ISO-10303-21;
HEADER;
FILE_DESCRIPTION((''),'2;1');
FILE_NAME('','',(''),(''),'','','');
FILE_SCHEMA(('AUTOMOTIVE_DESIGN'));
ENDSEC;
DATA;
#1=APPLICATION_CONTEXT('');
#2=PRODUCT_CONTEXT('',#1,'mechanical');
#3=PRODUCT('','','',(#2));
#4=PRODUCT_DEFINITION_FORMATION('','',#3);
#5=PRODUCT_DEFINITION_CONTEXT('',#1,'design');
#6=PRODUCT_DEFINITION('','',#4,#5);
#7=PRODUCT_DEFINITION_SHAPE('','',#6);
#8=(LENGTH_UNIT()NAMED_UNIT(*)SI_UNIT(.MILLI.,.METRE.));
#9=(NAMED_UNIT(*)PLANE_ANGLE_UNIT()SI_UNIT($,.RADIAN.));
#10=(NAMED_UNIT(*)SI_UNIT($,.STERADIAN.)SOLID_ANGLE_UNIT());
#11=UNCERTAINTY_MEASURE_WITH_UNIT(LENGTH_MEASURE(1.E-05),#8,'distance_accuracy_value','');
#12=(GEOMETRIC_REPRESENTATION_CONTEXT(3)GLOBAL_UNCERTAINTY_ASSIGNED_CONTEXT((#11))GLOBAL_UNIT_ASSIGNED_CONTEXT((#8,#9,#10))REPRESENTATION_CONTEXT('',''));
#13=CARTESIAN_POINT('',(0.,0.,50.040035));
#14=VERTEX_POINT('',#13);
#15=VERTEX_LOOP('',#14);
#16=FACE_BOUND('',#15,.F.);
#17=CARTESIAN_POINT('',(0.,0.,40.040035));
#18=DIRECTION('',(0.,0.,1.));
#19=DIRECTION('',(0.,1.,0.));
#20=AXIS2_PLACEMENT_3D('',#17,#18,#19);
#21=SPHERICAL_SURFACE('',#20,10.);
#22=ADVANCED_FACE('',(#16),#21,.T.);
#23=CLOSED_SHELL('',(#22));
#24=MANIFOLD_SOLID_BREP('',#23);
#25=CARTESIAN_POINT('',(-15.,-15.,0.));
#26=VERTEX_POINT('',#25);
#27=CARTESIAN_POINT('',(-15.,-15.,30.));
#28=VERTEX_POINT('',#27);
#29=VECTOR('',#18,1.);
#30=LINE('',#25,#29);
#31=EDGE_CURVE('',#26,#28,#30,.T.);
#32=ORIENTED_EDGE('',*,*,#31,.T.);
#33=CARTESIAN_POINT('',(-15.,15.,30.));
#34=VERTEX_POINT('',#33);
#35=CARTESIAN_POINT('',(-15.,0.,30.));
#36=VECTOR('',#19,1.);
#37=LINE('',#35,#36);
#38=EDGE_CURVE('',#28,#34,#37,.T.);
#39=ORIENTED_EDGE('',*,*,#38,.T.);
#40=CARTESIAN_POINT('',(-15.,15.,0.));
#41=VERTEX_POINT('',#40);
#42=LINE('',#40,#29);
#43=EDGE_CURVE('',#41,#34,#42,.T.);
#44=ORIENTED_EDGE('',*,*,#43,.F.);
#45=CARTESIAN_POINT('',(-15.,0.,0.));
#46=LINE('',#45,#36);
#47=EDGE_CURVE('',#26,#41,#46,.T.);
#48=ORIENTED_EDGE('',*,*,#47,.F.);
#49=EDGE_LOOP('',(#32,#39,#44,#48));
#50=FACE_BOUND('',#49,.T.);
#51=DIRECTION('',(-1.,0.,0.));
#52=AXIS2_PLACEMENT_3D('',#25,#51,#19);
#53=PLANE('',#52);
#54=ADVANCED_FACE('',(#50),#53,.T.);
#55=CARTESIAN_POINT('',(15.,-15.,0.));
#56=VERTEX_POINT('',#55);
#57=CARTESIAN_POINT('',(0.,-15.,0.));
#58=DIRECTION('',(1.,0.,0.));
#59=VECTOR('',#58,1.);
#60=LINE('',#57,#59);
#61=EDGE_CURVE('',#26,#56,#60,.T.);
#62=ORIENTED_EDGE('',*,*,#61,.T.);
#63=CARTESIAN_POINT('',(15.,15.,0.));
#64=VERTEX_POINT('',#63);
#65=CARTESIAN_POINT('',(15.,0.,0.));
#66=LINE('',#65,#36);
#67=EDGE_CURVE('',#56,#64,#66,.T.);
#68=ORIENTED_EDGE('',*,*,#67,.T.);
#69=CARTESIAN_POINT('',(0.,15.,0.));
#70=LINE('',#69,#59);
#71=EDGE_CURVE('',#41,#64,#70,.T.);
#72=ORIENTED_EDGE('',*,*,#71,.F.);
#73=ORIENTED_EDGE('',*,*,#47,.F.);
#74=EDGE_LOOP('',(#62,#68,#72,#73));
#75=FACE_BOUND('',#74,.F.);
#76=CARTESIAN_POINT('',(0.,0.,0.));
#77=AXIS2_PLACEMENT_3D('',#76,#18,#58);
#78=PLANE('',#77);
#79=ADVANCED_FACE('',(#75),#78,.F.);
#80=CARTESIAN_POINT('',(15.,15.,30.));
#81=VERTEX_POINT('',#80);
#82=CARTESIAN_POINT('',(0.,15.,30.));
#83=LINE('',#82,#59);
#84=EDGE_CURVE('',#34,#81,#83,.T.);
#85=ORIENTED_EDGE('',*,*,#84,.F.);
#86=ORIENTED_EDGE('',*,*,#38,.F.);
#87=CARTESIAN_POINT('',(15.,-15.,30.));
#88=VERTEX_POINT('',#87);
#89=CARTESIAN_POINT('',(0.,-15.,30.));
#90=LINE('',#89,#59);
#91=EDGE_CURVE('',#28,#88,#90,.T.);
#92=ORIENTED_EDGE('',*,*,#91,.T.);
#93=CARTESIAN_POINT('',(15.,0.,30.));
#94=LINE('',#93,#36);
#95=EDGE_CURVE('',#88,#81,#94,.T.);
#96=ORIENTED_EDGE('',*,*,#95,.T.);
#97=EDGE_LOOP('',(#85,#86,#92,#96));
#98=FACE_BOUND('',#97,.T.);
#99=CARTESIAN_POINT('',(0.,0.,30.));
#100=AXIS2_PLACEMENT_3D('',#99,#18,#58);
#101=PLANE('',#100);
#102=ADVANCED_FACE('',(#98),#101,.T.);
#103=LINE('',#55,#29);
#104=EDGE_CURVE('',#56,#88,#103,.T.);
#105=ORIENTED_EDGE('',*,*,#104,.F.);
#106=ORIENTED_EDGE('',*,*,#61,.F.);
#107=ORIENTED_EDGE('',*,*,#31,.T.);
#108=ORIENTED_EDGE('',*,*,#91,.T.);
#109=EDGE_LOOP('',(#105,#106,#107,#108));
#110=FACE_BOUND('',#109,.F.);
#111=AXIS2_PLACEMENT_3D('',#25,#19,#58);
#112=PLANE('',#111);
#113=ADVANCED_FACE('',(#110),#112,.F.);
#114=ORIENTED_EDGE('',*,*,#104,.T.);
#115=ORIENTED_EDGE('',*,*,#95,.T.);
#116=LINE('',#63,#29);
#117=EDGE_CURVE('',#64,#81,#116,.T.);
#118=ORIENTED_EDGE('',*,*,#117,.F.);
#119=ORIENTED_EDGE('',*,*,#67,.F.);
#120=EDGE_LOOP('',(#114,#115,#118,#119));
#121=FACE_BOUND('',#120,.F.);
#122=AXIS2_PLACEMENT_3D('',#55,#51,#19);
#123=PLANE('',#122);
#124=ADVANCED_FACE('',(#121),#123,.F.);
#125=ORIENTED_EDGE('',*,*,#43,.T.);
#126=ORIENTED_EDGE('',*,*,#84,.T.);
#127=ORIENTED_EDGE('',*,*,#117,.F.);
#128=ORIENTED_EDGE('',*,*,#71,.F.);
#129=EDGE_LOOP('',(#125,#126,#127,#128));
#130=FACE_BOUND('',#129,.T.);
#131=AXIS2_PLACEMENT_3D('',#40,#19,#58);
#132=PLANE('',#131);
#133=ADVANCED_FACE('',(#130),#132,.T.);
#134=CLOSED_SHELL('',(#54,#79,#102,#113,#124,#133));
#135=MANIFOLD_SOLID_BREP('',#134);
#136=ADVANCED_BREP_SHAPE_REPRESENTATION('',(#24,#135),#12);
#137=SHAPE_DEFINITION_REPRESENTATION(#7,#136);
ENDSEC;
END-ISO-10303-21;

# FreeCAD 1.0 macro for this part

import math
import FreeCAD as App
import Part
import Sketcher
from FreeCAD import Vector
Q = App.Units.Quantity


def add_polygon(sketch, points):
    """Adds a closed chain of lines whose ends are joined by coincident constraints."""
    first, n = sketch.GeometryCount, len(points)
    for a, b in zip(points, points[1:] + points[:1]):
        sketch.addGeometry(Part.LineSegment(App.Vector(*a, 0), App.Vector(*b, 0)), False)
    for i in range(n):
        sketch.addConstraint(Sketcher.Constraint("Coincident", first + i, 2, first + (i + 1) % n, 1))

doc = App.newDocument("Part")
body = doc.addObject("PartDesign::Body", "Body")

sketch1 = doc.addObject("Sketcher::SketchObject", "Sketch")
body.addObject(sketch1)
sketch1.AttachmentSupport = (doc.XY_Plane, [""])
sketch1.MapMode = "FlatFace"
add_polygon(sketch1, [(-15, 15), (-15, -15), (15, -15), (15, 15)])
sketch1.addConstraint([
    Sketcher.Constraint("Vertical", 0),
    Sketcher.Constraint("Horizontal", 1),
    Sketcher.Constraint("Vertical", 2),
    Sketcher.Constraint("Horizontal", 3),
    Sketcher.Constraint("Symmetric", 0, 2, 2, 2, -1, 1),
    Sketcher.Constraint("Equal", 3, 0),
    Sketcher.Constraint("DistanceX", 1, 1, 1, 2, Q("30 mm")),
])
pad1 = doc.addObject("PartDesign::Pad", "Pad")
body.addObject(pad1)
pad1.Profile = sketch1
pad1.Length = 30
body2 = doc.addObject("PartDesign::Body", "Body001")

sketch2 = doc.addObject("Sketcher::SketchObject", "Sketch001")
body2.addObject(sketch2)
sketch2.AttachmentSupport = (doc.getObject("YZ_Plane001"), [""])
sketch2.MapMode = "FlatFace"
sketch2.addGeometry([
    Part.LineSegment(Vector(0, 50, 0), Vector(0, 30, 0)),
    Part.ArcOfCircle(Part.Circle(Vector(0, 40, 0), Vector(0, 0, 1), 10), math.radians(-90), math.radians(90)),
], False)
sketch2.addConstraint([
    Sketcher.Constraint("Coincident", 0, 1, 1, 2),
    Sketcher.Constraint("Coincident", 1, 1, 0, 2),
    Sketcher.Constraint("Vertical", 0),
    Sketcher.Constraint("PointOnObject", 1, 3, -2),
    Sketcher.Constraint("PointOnObject", 0, 1, -2),
    Sketcher.Constraint("Radius", 1, Q("10 mm")),
    Sketcher.Constraint("DistanceY", -1, 1, 1, 3, Q("40.040035 mm")),
])
revolution = doc.addObject("PartDesign::Revolution", "Revolution")
body2.addObject(revolution)
revolution.Profile = sketch2
revolution.ReferenceAxis = (sketch2, ["V_Axis"])
revolution.Angle = 360

doc.recompute()
